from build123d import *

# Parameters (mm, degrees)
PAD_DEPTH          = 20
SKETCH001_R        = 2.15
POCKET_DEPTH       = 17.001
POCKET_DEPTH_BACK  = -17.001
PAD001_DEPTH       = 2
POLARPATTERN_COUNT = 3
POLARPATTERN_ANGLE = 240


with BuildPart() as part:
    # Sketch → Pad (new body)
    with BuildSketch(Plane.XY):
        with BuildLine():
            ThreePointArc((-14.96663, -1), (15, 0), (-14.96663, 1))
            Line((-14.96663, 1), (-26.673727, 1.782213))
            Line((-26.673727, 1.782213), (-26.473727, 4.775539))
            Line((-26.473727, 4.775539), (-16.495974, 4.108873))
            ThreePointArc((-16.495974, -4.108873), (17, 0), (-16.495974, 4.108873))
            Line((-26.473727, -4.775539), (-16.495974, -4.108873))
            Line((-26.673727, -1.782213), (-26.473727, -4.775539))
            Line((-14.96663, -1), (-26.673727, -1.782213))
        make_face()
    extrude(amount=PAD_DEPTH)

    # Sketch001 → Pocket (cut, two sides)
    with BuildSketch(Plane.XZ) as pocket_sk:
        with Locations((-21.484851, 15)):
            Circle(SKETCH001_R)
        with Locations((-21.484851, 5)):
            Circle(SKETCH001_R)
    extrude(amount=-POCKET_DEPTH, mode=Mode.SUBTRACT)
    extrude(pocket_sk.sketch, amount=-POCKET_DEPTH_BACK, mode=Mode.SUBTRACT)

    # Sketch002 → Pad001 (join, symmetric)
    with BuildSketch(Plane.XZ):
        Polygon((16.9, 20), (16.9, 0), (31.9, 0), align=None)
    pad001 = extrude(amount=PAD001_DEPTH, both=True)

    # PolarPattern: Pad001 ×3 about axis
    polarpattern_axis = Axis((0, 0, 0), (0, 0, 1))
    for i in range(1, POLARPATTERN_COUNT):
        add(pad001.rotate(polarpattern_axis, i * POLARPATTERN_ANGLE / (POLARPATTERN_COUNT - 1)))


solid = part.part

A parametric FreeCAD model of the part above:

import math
import FreeCAD as App
import Part
import Sketcher

V = App.Vector
Q = App.Units.Quantity

doc = App.newDocument("Part")
params = doc.addObject("Spreadsheet::Sheet", "Params")
for row, (alias, value) in enumerate([
    ("sketch1_radius", "15 mm"),
    ("sketch1_radius2", "17 mm"),
    ("sketch1_length", "3 mm"),
    ("sketch1_length2", "10 mm"),
    ("pad1_length", "20 mm"),
    ("sketch2_diameter", "4.3 mm"),
    ("sketch3_width", "15 mm"),
    ("sketch3_height", "20 mm"),
    ("pad2_length", "4 mm"),
], start=1):
    params.set(f"A{row}", alias)
    params.set(f"B{row}", "=" + value)
    params.setAlias(f"B{row}", alias)

body = doc.addObject("PartDesign::Body", "Body")

# Sketch on XY plane
sketch1 = body.newObject("Sketcher::SketchObject", "Sketch")
sketch1.AttachmentSupport = (doc.getObject("XY_Plane"), [""])
sketch1.MapMode = "FlatFace"
sketch1.addGeometry(Part.ArcOfCircle(Part.Circle(V(0, 0, 0), V(0, 0, 1), 15), math.radians(-176.177446), math.radians(176.177446)), False)
sketch1.addGeometry(Part.LineSegment(V(-14.96663, -1, 0), V(-26.673727, -1.782213, 0)), False)
sketch1.addGeometry(Part.LineSegment(V(-26.673727, -1.782213, 0), V(-26.473727, -4.775539, 0)), False)
sketch1.addGeometry(Part.LineSegment(V(-26.473727, -4.775539, 0), V(-16.495974, -4.108873, 0)), False)
sketch1.addGeometry(Part.ArcOfCircle(Part.Circle(V(0, 0, 0), V(0, 0, 1), 17), math.radians(-166.013196), math.radians(166.013196)), False)
sketch1.addGeometry(Part.LineSegment(V(-16.495974, 4.108873, 0), V(-26.473727, 4.775539, 0)), False)
sketch1.addGeometry(Part.LineSegment(V(-26.473727, 4.775539, 0), V(-26.673727, 1.782213, 0)), False)
sketch1.addGeometry(Part.LineSegment(V(-26.673727, 1.782213, 0), V(-14.96663, 1, 0)), False)
sketch1.addConstraint(Sketcher.Constraint("Coincident", 0, 1, 1, 1))
sketch1.addConstraint(Sketcher.Constraint("Coincident", 1, 2, 2, 1))
sketch1.addConstraint(Sketcher.Constraint("Coincident", 2, 2, 3, 1))
sketch1.addConstraint(Sketcher.Constraint("Coincident", 3, 2, 4, 1))
sketch1.addConstraint(Sketcher.Constraint("Coincident", 4, 2, 5, 1))
sketch1.addConstraint(Sketcher.Constraint("Coincident", 5, 2, 6, 1))
sketch1.addConstraint(Sketcher.Constraint("Coincident", 6, 2, 7, 1))
sketch1.addConstraint(Sketcher.Constraint("Coincident", 7, 2, 0, 2))
sketch1.addConstraint(Sketcher.Constraint("Coincident", 0, 3, -1, 1))
sketch1.addConstraint(Sketcher.Constraint("Coincident", 4, 3, -1, 1))
sketch1.addConstraint(Sketcher.Constraint("Symmetric", 2, 2, 5, 2, -1))
sketch1.addConstraint(Sketcher.Constraint("Symmetric", 1, 2, 6, 2, -1))
sketch1.addConstraint(Sketcher.Constraint("Perpendicular", 1, 2))
sketch1.addConstraint(Sketcher.Constraint("Perpendicular", 2, 3))
sketch1.addConstraint(Sketcher.Constraint("Perpendicular", 5, 6))
sketch1.addConstraint(Sketcher.Constraint("Perpendicular", 6, 7))
sketch1.addConstraint(Sketcher.Constraint("Radius", 0, Q("15 mm")))
sketch1.addConstraint(Sketcher.Constraint("Radius", 4, Q("17 mm")))
sketch1.addConstraint(Sketcher.Constraint("Distance", 2, Q("3 mm")))
sketch1.addConstraint(Sketcher.Constraint("Distance", 3, Q("10 mm")))
sketch1.addConstraint(Sketcher.Constraint("DistanceY", 0, 1, -1, 1, Q("1 mm")))
sketch1.addConstraint(Sketcher.Constraint("DistanceX", 1, 2, 2, 2, Q("0.2 mm")))
sketch1.setExpression("Constraints[16]", "Params.sketch1_radius")
sketch1.setExpression("Constraints[17]", "Params.sketch1_radius2")
sketch1.setExpression("Constraints[18]", "Params.sketch1_length")
sketch1.setExpression("Constraints[19]", "Params.sketch1_length2")
pad1 = body.newObject("PartDesign::Pad", "Pad")
pad1.Profile = sketch1
pad1.setExpression("Length", "Params.pad1_length")

# Sketch on XZ plane
sketch2 = body.newObject("Sketcher::SketchObject", "Sketch001")
sketch2.AttachmentSupport = (doc.getObject("XZ_Plane"), [""])
sketch2.MapMode = "FlatFace"
sketch2.addGeometry(Part.Circle(V(-21.484851, 15, 0), V(0, 0, 1), 2.15), False)
sketch2.addGeometry(Part.Circle(V(-21.484851, 5, 0), V(0, 0, 1), 2.15), False)
sketch2.addConstraint(Sketcher.Constraint("Equal", 0, 1))
sketch2.addConstraint(Sketcher.Constraint("Vertical", 0, 3, 1, 3))
sketch2.addConstraint(Sketcher.Constraint("Diameter", 0, Q("4.3 mm")))
sketch2.addConstraint(Sketcher.Constraint("DistanceY", -1, 1, 0, 3, Q("15 mm")))
sketch2.addConstraint(Sketcher.Constraint("DistanceY", -1, 1, 1, 3, Q("5 mm")))
sketch2.addConstraint(Sketcher.Constraint("DistanceX", 0, 3, -1, 1, Q("21.484851 mm")))
sketch2.setExpression("Constraints[2]", "Params.sketch2_diameter")
pocket1 = body.newObject("PartDesign::Pocket", "Pocket")
pocket1.Profile = sketch2
pocket1.Type = "ThroughAll"
pocket1.Midplane = True

# Sketch on XZ plane
sketch3 = body.newObject("Sketcher::SketchObject", "Sketch002")
sketch3.AttachmentSupport = (doc.getObject("XZ_Plane"), [""])
sketch3.MapMode = "FlatFace"
sketch3.addGeometry(Part.LineSegment(V(16.9, 20, 0), V(16.9, 0, 0)), False)
sketch3.addGeometry(Part.LineSegment(V(16.9, 0, 0), V(31.9, 0, 0)), False)
sketch3.addGeometry(Part.LineSegment(V(31.9, 0, 0), V(16.9, 20, 0)), False)
sketch3.addConstraint(Sketcher.Constraint("Coincident", 0, 2, 1, 1))
sketch3.addConstraint(Sketcher.Constraint("Coincident", 1, 2, 2, 1))
sketch3.addConstraint(Sketcher.Constraint("Coincident", 2, 2, 0, 1))
sketch3.addConstraint(Sketcher.Constraint("Vertical", 0))
sketch3.addConstraint(Sketcher.Constraint("Horizontal", 1))
sketch3.addConstraint(Sketcher.Constraint("PointOnObject", 0, 2, -1))
sketch3.addConstraint(Sketcher.Constraint("DistanceX", 1, 1, 1, 2, Q("15 mm")))
sketch3.addConstraint(Sketcher.Constraint("DistanceY", 0, 2, 0, 1, Q("20 mm")))
sketch3.addConstraint(Sketcher.Constraint("DistanceX", -1, 1, 0, 2, Q("16.9 mm")))
sketch3.setExpression("Constraints[6]", "Params.sketch3_width")
sketch3.setExpression("Constraints[7]", "Params.sketch3_height")
pad2 = body.newObject("PartDesign::Pad", "Pad001")
pad2.Profile = sketch3
pad2.setExpression("Length", "Params.pad2_length")
pad2.Midplane = True
doc.recompute()

polarpattern = body.newObject("PartDesign::PolarPattern", "PolarPattern")
polarpattern.Originals = [pad2]
polarpattern.Axis = (doc.getObject("Z_Axis"), [""])
polarpattern.Angle = 360
polarpattern.Occurrences = 3
body.Tip = polarpattern

doc.recompute()
